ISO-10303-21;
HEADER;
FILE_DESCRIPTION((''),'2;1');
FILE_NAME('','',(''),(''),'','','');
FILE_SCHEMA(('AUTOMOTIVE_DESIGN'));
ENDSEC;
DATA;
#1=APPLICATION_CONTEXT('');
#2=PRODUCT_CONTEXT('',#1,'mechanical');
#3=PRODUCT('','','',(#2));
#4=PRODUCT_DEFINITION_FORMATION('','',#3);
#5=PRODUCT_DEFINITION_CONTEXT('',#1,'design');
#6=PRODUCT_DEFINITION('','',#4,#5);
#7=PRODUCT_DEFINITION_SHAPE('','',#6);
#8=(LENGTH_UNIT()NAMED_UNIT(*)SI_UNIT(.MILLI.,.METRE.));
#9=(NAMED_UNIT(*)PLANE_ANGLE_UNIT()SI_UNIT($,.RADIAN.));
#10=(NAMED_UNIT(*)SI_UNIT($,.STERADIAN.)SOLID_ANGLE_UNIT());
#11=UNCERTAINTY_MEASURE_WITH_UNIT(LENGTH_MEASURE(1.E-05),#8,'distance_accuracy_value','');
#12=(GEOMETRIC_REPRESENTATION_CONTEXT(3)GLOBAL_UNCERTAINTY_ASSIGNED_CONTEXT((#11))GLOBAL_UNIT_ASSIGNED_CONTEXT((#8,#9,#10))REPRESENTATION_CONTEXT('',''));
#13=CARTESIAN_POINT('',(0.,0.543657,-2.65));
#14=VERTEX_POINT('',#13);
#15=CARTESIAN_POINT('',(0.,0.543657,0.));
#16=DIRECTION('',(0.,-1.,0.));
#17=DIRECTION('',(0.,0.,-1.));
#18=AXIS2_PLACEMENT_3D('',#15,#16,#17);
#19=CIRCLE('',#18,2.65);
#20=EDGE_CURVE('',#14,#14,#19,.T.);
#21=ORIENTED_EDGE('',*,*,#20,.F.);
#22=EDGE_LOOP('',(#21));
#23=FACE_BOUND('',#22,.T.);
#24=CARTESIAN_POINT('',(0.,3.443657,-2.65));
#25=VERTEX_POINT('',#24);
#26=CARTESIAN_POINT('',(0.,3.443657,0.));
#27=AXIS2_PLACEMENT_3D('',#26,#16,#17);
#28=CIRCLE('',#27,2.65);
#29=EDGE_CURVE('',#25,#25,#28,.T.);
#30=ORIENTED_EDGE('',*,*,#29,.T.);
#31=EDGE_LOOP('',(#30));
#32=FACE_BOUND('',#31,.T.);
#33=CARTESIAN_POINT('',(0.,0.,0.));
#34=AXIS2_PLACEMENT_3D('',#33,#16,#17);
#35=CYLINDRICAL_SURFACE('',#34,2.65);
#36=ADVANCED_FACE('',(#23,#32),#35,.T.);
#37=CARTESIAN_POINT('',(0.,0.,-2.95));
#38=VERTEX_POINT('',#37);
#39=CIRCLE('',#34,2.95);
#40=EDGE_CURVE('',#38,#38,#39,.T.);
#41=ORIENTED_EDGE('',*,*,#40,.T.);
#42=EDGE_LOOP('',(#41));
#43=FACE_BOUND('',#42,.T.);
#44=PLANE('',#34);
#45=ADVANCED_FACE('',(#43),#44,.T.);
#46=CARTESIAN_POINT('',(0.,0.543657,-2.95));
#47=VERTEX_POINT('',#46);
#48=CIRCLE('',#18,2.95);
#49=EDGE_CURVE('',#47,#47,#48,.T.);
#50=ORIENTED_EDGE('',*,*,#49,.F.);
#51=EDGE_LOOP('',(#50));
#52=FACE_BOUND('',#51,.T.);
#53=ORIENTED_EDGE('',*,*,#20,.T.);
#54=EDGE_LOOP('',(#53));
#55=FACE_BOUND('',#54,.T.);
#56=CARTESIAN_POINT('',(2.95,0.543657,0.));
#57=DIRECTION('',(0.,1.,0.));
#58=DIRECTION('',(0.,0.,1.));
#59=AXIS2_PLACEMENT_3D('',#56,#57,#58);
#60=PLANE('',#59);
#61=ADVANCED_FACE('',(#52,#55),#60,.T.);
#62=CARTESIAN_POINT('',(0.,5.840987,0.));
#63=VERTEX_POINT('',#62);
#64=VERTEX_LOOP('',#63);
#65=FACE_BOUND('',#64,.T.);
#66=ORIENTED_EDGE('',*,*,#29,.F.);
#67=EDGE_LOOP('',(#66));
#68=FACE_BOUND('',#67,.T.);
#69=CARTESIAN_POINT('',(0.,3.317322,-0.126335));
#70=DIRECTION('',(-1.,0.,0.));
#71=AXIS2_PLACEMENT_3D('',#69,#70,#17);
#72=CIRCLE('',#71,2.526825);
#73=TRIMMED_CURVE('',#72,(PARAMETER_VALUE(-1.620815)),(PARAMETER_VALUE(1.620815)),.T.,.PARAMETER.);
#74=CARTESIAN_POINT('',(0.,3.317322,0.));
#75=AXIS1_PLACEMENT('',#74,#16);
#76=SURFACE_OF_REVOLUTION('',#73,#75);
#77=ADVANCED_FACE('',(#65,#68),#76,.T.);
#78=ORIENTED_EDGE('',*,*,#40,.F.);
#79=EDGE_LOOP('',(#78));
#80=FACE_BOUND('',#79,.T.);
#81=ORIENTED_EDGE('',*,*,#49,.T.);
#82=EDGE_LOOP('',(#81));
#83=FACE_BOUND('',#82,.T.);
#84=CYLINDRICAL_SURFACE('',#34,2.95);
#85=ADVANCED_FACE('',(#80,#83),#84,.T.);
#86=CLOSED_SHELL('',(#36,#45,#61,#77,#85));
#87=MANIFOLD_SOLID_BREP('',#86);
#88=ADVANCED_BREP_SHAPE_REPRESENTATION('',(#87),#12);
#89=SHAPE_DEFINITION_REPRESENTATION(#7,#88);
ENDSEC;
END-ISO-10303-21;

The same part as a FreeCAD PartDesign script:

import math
import FreeCAD as App
import Part
import Sketcher

doc = App.newDocument("Part")
body = doc.addObject("PartDesign::Body", "Body")

# Sketch on XY plane
sketch1 = body.newObject("Sketcher::SketchObject", "Sketch")
sketch1.AttachmentSupport = (doc.getObject("XY_Plane"), [""])
sketch1.MapMode = "FlatFace"
sketch1.addGeometry([
    Part.LineSegment(App.Vector(0, 5.840987, 0), App.Vector(0, 0, 0)),  # 0
    Part.LineSegment(App.Vector(0, 0, 0), App.Vector(2.95, 0, 0)),  # 1
    Part.LineSegment(App.Vector(2.95, 0, 0), App.Vector(2.95, 0.543657, 0)),  # 2
    Part.LineSegment(App.Vector(2.95, 0.543657, 0), App.Vector(2.65, 0.543657, 0)),  # 3
    Part.LineSegment(App.Vector(2.65, 0.543657, 0), App.Vector(2.65, 3.443657, 0)),  # 4
    Part.ArcOfCircle(Part.Circle(App.Vector(0.126335, 3.317322, 0), App.Vector(0, 0, 1), 2.526825), math.radians(2.865838), math.radians(92.865838)),  # 5
], False)
sketch1.addConstraint([
    Sketcher.Constraint("Coincident", 0, 2, 1, 1),
    Sketcher.Constraint("Coincident", 1, 2, 2, 1),
    Sketcher.Constraint("Coincident", 2, 2, 3, 1),
    Sketcher.Constraint("Coincident", 3, 2, 4, 1),
    Sketcher.Constraint("Coincident", 4, 2, 5, 1),
    Sketcher.Constraint("Coincident", 5, 2, 0, 1),
    Sketcher.Constraint("Vertical", 0),
    Sketcher.Constraint("Horizontal", 1),
    Sketcher.Constraint("Vertical", 2),
    Sketcher.Constraint("Horizontal", 3),
    Sketcher.Constraint("Vertical", 4),
    Sketcher.Constraint("Coincident", 0, 2, -1, 1),
    Sketcher.Constraint("DistanceX", 3, 2, 3, 1, 0.3),
    Sketcher.Constraint("DistanceY", 4, 1, 4, 2, 2.9),
    Sketcher.Constraint("DistanceX", 1, 1, 1, 2, 2.95),
    Sketcher.Constraint("Radius", 5, 2.526825),
    Sketcher.Constraint("DistanceY", 0, 2, 0, 1, 5.840987),
    Sketcher.Constraint("DistanceY", 2, 1, 2, 2, 0.543657),
])
revolution = body.newObject("PartDesign::Revolution", "Revolution")
revolution.Profile = sketch1
revolution.ReferenceAxis = (sketch1, ["V_Axis"])
revolution.Angle = 360

doc.recompute()
